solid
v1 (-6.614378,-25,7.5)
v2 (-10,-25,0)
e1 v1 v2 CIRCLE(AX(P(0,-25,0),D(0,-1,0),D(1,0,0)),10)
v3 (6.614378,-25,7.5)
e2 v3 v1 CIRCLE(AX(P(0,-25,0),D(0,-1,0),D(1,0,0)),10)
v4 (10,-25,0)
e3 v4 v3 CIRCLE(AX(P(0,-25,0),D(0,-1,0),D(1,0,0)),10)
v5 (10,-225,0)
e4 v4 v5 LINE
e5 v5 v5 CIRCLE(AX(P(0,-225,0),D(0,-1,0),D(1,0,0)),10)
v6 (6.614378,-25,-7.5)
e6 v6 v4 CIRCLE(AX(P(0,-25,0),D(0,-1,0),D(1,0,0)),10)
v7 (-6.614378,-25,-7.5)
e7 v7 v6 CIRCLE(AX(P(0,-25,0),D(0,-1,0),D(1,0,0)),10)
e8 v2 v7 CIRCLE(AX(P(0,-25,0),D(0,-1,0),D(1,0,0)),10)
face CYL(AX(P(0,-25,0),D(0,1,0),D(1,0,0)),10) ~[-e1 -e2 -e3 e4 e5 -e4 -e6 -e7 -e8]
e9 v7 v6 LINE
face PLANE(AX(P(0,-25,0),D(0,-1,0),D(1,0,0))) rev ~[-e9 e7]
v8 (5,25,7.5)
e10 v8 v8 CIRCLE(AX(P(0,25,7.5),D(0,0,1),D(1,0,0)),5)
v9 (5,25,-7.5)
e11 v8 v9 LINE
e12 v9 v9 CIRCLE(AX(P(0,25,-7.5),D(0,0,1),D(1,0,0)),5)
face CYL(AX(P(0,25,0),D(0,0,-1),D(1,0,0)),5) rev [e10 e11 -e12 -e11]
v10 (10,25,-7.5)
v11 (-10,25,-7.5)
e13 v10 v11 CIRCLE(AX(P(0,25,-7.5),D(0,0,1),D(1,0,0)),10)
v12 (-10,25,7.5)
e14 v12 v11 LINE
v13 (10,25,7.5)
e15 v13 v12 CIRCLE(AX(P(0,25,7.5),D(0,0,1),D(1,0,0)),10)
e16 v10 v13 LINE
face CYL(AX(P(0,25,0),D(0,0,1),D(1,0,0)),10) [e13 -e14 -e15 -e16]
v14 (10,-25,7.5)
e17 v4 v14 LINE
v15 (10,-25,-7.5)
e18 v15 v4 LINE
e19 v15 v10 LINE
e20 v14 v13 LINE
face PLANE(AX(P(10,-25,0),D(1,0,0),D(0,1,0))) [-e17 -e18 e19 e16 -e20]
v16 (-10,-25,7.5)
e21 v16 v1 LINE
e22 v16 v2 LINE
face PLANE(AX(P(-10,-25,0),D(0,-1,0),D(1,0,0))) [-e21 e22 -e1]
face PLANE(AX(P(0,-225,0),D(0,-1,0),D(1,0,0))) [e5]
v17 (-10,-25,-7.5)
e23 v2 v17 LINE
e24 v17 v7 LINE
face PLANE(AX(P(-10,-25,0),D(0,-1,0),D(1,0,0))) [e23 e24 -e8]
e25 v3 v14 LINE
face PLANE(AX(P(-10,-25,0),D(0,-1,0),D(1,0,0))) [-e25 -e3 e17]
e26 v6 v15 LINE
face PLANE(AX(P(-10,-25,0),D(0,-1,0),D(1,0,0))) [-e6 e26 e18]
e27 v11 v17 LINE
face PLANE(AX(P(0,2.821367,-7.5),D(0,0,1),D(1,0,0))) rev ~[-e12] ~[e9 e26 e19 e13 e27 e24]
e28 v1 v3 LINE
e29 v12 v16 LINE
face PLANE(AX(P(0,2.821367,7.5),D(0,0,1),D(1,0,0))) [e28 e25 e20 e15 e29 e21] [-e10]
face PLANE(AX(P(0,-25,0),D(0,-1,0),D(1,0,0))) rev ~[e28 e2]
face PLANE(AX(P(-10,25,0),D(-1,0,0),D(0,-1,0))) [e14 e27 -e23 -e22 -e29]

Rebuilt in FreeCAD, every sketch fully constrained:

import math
import FreeCAD as App
import Part
import Sketcher
from FreeCAD import Vector

doc = App.newDocument("Part")
body = doc.addObject("PartDesign::Body", "Body")

# Sketch on XY plane
sketch1 = body.newObject("Sketcher::SketchObject", "Sketch")
sketch1.AttachmentSupport = (doc.getObject("XY_Plane"), [""])
sketch1.MapMode = "FlatFace"
sketch1.addGeometry([
    Part.LineSegment(Vector(-10, -25, 0), Vector(10, -25, 0)),  # 0
    Part.LineSegment(Vector(10, -25, 0), Vector(10, 25, 0)),  # 1
    Part.ArcOfCircle(Part.Circle(Vector(0, 25, 0), Vector(0, 0, 1), 10), math.radians(0), math.radians(180)),  # 2
    Part.LineSegment(Vector(-10, 25, 0), Vector(-10, -25, 0)),  # 3
    Part.Circle(Vector(0, 25, 0), Vector(0, 0, 1), 5),  # 4
], False)
sketch1.addConstraint([
    Sketcher.Constraint("Coincident", 0, 2, 1, 1),
    Sketcher.Constraint("Tangent", 1, 2, 2, 1),
    Sketcher.Constraint("Tangent", 2, 2, 3, 1),
    Sketcher.Constraint("Coincident", 3, 2, 0, 1),
    Sketcher.Constraint("Horizontal", 0),
    Sketcher.Constraint("Vertical", 1),
    Sketcher.Constraint("Vertical", 3),
    Sketcher.Constraint("Coincident", 4, 3, 2, 3),
    Sketcher.Constraint("Symmetric", 0, 2, 2, 2, -1, 1),
    Sketcher.Constraint("Diameter", 4, 10.0),
    Sketcher.Constraint("Radius", 2, 10.0),
    Sketcher.Constraint("DistanceY", 1, 1, 1, 2, 50.0),
])
pad1 = body.newObject("PartDesign::Pad", "Pad")
pad1.Profile = sketch1
pad1.Length = 15
pad1.Midplane = True

# Sketch on XZ plane
sketch2 = body.newObject("Sketcher::SketchObject", "Sketch001")
sketch2.AttachmentSupport = (doc.getObject("XZ_Plane"), [""])
sketch2.MapMode = "FlatFace"
sketch2.AttachmentOffset = App.Placement(Vector(0, 0, 25), App.Rotation())
sketch2.addGeometry(Part.Circle(Vector(0, 0, 0), Vector(0, 0, 1), 10), False)
sketch2.addConstraint([
    Sketcher.Constraint("Coincident", 0, 3, -1, 1),
    Sketcher.Constraint("Diameter", 0, 20.0),
])
pad2 = body.newObject("PartDesign::Pad", "Pad001")
pad2.Profile = sketch2
pad2.Length = 200

doc.recompute()
